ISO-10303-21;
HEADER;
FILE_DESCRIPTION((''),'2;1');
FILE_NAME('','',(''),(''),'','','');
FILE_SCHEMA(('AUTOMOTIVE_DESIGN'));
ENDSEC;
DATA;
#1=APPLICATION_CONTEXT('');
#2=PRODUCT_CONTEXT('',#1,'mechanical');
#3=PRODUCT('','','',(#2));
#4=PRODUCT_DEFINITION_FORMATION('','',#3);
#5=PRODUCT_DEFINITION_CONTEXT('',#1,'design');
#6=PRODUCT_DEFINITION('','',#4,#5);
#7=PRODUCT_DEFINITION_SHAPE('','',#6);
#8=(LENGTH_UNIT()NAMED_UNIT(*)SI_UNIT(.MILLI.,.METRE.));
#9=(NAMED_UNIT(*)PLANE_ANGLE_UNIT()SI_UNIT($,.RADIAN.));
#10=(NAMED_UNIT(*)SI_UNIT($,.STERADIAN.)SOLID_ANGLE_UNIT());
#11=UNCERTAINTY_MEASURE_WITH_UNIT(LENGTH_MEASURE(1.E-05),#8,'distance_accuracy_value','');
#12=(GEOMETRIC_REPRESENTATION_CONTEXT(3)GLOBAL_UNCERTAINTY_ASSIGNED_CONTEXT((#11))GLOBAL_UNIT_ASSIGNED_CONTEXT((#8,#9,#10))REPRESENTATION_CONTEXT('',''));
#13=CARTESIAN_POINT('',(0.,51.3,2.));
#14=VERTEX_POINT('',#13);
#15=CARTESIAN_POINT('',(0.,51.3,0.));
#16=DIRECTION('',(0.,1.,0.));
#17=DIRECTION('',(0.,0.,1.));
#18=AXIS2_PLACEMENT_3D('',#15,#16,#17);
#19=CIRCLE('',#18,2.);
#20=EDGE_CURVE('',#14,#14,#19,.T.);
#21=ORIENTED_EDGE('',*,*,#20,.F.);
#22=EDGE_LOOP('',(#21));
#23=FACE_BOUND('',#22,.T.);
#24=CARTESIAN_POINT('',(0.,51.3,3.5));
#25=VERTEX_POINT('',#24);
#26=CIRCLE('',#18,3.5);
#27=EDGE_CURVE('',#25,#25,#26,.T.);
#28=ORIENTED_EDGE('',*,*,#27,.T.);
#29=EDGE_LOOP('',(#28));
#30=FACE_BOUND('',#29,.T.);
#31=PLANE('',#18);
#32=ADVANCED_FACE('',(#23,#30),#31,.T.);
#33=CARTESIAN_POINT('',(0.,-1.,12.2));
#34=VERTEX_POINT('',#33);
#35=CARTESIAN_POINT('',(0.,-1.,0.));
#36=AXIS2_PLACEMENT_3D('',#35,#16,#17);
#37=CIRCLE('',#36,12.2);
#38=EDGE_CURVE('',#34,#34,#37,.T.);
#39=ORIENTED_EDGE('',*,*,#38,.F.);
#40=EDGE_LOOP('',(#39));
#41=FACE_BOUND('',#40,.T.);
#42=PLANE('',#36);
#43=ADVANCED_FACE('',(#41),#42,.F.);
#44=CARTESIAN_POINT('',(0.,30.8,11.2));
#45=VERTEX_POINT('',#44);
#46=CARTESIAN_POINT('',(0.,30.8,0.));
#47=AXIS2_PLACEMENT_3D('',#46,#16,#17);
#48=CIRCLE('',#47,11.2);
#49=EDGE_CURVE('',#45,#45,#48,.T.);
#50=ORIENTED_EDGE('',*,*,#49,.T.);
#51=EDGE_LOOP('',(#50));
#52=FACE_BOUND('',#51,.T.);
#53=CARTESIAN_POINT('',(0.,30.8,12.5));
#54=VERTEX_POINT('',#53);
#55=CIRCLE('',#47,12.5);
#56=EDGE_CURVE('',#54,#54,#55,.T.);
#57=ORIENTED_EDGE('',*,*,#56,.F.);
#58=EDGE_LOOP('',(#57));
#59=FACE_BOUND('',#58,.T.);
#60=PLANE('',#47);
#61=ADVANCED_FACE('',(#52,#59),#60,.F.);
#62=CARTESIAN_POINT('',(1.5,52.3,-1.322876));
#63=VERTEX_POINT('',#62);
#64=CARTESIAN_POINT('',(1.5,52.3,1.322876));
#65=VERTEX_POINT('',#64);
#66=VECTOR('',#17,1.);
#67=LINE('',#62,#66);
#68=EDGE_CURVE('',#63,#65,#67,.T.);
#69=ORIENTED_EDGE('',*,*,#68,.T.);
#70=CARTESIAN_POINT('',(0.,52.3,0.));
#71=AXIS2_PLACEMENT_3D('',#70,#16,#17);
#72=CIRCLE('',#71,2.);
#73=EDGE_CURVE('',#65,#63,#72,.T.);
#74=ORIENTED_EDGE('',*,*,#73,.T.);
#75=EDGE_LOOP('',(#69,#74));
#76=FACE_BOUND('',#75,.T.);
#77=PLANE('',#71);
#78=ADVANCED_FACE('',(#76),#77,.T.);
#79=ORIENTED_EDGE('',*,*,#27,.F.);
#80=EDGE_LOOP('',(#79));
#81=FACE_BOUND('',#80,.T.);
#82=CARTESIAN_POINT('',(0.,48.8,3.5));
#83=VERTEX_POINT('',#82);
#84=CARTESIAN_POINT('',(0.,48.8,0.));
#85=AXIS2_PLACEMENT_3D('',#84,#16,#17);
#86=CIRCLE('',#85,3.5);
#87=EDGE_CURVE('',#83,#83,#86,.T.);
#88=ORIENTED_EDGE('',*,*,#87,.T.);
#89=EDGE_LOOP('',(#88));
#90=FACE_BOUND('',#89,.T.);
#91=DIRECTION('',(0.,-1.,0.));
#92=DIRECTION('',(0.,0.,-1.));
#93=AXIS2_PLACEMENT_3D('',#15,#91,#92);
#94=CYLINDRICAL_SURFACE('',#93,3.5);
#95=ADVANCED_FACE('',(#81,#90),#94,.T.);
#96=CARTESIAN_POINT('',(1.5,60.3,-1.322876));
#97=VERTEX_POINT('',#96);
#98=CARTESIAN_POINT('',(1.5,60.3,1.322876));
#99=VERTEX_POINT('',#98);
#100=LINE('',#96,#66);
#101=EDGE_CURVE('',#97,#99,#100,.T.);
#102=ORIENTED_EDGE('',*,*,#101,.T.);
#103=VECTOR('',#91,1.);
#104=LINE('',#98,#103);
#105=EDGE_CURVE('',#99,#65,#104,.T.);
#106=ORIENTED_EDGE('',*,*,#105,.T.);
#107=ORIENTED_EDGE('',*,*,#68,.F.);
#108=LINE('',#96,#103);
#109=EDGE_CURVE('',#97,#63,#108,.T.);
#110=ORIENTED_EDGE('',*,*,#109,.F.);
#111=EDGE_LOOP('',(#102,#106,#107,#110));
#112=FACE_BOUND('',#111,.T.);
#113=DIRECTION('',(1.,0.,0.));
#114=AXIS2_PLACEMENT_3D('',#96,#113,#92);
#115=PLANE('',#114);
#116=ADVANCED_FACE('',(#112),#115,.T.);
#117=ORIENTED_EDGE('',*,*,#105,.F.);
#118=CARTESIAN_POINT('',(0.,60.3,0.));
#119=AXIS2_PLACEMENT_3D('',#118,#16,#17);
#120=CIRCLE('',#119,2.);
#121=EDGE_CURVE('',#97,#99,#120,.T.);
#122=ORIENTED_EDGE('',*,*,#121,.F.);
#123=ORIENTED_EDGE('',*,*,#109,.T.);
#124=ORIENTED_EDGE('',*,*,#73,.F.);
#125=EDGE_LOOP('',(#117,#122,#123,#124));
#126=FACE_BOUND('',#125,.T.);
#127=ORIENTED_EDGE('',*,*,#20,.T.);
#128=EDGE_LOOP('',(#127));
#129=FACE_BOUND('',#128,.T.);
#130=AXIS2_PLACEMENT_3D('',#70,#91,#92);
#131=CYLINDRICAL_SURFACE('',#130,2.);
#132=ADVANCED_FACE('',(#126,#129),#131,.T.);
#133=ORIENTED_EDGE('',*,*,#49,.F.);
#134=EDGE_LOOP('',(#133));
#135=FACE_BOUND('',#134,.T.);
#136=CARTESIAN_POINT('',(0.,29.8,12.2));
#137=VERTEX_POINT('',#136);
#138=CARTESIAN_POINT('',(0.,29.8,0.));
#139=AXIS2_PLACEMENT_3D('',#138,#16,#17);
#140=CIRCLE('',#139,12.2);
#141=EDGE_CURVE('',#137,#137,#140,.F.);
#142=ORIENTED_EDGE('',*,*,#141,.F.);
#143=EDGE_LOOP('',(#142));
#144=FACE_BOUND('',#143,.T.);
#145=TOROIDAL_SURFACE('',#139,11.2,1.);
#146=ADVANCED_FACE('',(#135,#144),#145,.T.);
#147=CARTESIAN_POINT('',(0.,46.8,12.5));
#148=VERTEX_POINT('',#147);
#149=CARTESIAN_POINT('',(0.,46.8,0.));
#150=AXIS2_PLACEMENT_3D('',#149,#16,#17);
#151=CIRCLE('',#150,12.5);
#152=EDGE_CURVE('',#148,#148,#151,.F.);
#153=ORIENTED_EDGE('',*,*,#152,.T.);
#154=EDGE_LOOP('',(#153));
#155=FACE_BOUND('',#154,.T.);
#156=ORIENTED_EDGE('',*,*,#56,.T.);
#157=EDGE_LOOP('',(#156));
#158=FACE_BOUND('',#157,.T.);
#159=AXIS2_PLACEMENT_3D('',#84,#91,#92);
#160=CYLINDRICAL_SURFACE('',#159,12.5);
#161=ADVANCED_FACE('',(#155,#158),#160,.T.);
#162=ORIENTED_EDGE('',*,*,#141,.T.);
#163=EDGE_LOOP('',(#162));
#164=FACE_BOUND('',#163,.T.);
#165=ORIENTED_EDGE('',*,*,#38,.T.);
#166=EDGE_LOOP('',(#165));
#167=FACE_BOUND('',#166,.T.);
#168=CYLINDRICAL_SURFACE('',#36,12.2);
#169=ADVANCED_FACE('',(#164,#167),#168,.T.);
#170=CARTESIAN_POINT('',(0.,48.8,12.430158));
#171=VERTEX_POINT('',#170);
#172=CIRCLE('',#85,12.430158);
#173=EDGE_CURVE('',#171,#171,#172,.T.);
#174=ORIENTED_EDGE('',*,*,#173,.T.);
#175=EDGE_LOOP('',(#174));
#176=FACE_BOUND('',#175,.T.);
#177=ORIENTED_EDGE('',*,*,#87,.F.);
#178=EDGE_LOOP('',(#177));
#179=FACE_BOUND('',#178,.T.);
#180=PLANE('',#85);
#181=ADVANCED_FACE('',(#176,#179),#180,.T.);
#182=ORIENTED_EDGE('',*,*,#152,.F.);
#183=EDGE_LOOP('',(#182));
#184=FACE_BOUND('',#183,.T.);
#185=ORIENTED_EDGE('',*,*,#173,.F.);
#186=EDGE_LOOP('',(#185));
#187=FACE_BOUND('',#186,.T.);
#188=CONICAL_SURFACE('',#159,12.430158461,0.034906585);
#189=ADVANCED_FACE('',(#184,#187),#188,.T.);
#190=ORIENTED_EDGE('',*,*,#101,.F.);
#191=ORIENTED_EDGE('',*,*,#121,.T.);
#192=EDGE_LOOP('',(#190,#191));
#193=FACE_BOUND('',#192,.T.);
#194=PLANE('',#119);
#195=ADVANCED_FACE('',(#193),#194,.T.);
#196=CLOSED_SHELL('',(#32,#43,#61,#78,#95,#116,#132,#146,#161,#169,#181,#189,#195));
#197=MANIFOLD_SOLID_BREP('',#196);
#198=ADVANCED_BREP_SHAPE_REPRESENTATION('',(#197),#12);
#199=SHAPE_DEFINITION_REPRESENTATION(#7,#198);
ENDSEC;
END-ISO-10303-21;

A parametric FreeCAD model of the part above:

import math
import FreeCAD as App
import Part
import Sketcher

V = App.Vector


def edges_at(feature, points):
    """Names of the edges that pass closest to the given points."""
    edges = feature.Shape.Edges
    near = lambda p: min(range(len(edges)), key=lambda i: edges[i].distToShape(Part.Vertex(*p))[0])
    return sorted({f"Edge{near(p) + 1}" for p in points})

doc = App.newDocument("Part")
body = doc.addObject("PartDesign::Body", "Body")

# Sketch on XZ plane
sketch1 = body.newObject("Sketcher::SketchObject", "Sketch")
sketch1.AttachmentSupport = (doc.getObject("XZ_Plane"), [""])
sketch1.MapMode = "FlatFace"
sketch1.addGeometry(Part.Circle(V(0, 0, 0), V(0, 0, 1), 12.2), False)
sketch1.addConstraint(Sketcher.Constraint("Coincident", 0, 3, -1, 1))
sketch1.addConstraint(Sketcher.Constraint("Diameter", 0, 24.4))
pad1 = body.newObject("PartDesign::Pad", "Pad")
pad1.Profile = sketch1
pad1.Type = "TwoLengths"
pad1.Length = 30.8
pad1.Length2 = 1
pad1.Reversed = True
doc.recompute()

fillet = body.newObject("PartDesign::Fillet", "Fillet")
fillet.Base = (pad1, edges_at(pad1, [(-12.2, 30.8, 0)]))
fillet.Radius = 1

# Sketch on XZ plane
sketch2 = body.newObject("Sketcher::SketchObject", "Sketch001")
sketch2.AttachmentSupport = (doc.getObject("XZ_Plane"), [""])
sketch2.MapMode = "FlatFace"
sketch2.AttachmentOffset = App.Placement(V(0, 0, -30.8), App.Rotation())
sketch2.addGeometry(Part.Circle(V(0, 0, 0), V(0, 0, 1), 12.5), False)
sketch2.addConstraint(Sketcher.Constraint("Coincident", 0, 3, -1, 1))
sketch2.addConstraint(Sketcher.Constraint("Diameter", 0, 25.0))
pad2 = body.newObject("PartDesign::Pad", "Pad001")
pad2.Profile = sketch2
pad2.Length = 18
pad2.Reversed = True
doc.recompute()

chamfer = body.newObject("PartDesign::Chamfer", "Chamfer")
chamfer.Base = (pad2, edges_at(pad2, [(-12.5, 48.8, 0)]))
chamfer.ChamferType = "Two distances"
chamfer.Size = 2
chamfer.Size2 = 0.069842

# Sketch on XZ plane
sketch3 = body.newObject("Sketcher::SketchObject", "Sketch002")
sketch3.AttachmentSupport = (doc.getObject("XZ_Plane"), [""])
sketch3.MapMode = "FlatFace"
sketch3.AttachmentOffset = App.Placement(V(0, 0, -48.8), App.Rotation())
sketch3.addGeometry(Part.Circle(V(0, 0, 0), V(0, 0, 1), 3.5), False)
sketch3.addConstraint(Sketcher.Constraint("Coincident", 0, 3, -1, 1))
sketch3.addConstraint(Sketcher.Constraint("Diameter", 0, 7.0))
pad3 = body.newObject("PartDesign::Pad", "Pad002")
pad3.Profile = sketch3
pad3.Length = 2.5
pad3.Reversed = True

# Sketch on XZ plane
sketch4 = body.newObject("Sketcher::SketchObject", "Sketch003")
sketch4.AttachmentSupport = (doc.getObject("XZ_Plane"), [""])
sketch4.MapMode = "FlatFace"
sketch4.AttachmentOffset = App.Placement(V(0, 0, -51.3), App.Rotation())
sketch4.addGeometry(Part.Circle(V(0, 0, 0), V(0, 0, 1), 2), False)
sketch4.addConstraint(Sketcher.Constraint("Coincident", 0, 3, -1, 1))
sketch4.addConstraint(Sketcher.Constraint("Diameter", 0, 4.0))
pad4 = body.newObject("PartDesign::Pad", "Pad003")
pad4.Profile = sketch4
pad4.Length = 1
pad4.Reversed = True

# Sketch on XZ plane
sketch5 = body.newObject("Sketcher::SketchObject", "Sketch004")
sketch5.AttachmentSupport = (doc.getObject("XZ_Plane"), [""])
sketch5.MapMode = "FlatFace"
sketch5.AttachmentOffset = App.Placement(V(0, 0, -52.3), App.Rotation())
sketch5.addGeometry(Part.LineSegment(V(1.5, 1.322876, 0), V(1.5, -1.322876, 0)), False)
sketch5.addGeometry(Part.ArcOfCircle(Part.Circle(V(0, 0, 0), V(0, 0, 1), 2), math.radians(41.409622), math.radians(318.590378)), False)
sketch5.addConstraint(Sketcher.Constraint("Coincident", 0, 1, 1, 1))
sketch5.addConstraint(Sketcher.Constraint("Coincident", 1, 2, 0, 2))
sketch5.addConstraint(Sketcher.Constraint("Vertical", 0))
sketch5.addConstraint(Sketcher.Constraint("Coincident", 1, 3, -1, 1))
sketch5.addConstraint(Sketcher.Constraint("Radius", 1, 2.0))
sketch5.addConstraint(Sketcher.Constraint("DistanceX", -1, 1, 0, 1, 1.5))
pad5 = body.newObject("PartDesign::Pad", "Pad004")
pad5.Profile = sketch5
pad5.Length = 8
pad5.Reversed = True

doc.recompute()
